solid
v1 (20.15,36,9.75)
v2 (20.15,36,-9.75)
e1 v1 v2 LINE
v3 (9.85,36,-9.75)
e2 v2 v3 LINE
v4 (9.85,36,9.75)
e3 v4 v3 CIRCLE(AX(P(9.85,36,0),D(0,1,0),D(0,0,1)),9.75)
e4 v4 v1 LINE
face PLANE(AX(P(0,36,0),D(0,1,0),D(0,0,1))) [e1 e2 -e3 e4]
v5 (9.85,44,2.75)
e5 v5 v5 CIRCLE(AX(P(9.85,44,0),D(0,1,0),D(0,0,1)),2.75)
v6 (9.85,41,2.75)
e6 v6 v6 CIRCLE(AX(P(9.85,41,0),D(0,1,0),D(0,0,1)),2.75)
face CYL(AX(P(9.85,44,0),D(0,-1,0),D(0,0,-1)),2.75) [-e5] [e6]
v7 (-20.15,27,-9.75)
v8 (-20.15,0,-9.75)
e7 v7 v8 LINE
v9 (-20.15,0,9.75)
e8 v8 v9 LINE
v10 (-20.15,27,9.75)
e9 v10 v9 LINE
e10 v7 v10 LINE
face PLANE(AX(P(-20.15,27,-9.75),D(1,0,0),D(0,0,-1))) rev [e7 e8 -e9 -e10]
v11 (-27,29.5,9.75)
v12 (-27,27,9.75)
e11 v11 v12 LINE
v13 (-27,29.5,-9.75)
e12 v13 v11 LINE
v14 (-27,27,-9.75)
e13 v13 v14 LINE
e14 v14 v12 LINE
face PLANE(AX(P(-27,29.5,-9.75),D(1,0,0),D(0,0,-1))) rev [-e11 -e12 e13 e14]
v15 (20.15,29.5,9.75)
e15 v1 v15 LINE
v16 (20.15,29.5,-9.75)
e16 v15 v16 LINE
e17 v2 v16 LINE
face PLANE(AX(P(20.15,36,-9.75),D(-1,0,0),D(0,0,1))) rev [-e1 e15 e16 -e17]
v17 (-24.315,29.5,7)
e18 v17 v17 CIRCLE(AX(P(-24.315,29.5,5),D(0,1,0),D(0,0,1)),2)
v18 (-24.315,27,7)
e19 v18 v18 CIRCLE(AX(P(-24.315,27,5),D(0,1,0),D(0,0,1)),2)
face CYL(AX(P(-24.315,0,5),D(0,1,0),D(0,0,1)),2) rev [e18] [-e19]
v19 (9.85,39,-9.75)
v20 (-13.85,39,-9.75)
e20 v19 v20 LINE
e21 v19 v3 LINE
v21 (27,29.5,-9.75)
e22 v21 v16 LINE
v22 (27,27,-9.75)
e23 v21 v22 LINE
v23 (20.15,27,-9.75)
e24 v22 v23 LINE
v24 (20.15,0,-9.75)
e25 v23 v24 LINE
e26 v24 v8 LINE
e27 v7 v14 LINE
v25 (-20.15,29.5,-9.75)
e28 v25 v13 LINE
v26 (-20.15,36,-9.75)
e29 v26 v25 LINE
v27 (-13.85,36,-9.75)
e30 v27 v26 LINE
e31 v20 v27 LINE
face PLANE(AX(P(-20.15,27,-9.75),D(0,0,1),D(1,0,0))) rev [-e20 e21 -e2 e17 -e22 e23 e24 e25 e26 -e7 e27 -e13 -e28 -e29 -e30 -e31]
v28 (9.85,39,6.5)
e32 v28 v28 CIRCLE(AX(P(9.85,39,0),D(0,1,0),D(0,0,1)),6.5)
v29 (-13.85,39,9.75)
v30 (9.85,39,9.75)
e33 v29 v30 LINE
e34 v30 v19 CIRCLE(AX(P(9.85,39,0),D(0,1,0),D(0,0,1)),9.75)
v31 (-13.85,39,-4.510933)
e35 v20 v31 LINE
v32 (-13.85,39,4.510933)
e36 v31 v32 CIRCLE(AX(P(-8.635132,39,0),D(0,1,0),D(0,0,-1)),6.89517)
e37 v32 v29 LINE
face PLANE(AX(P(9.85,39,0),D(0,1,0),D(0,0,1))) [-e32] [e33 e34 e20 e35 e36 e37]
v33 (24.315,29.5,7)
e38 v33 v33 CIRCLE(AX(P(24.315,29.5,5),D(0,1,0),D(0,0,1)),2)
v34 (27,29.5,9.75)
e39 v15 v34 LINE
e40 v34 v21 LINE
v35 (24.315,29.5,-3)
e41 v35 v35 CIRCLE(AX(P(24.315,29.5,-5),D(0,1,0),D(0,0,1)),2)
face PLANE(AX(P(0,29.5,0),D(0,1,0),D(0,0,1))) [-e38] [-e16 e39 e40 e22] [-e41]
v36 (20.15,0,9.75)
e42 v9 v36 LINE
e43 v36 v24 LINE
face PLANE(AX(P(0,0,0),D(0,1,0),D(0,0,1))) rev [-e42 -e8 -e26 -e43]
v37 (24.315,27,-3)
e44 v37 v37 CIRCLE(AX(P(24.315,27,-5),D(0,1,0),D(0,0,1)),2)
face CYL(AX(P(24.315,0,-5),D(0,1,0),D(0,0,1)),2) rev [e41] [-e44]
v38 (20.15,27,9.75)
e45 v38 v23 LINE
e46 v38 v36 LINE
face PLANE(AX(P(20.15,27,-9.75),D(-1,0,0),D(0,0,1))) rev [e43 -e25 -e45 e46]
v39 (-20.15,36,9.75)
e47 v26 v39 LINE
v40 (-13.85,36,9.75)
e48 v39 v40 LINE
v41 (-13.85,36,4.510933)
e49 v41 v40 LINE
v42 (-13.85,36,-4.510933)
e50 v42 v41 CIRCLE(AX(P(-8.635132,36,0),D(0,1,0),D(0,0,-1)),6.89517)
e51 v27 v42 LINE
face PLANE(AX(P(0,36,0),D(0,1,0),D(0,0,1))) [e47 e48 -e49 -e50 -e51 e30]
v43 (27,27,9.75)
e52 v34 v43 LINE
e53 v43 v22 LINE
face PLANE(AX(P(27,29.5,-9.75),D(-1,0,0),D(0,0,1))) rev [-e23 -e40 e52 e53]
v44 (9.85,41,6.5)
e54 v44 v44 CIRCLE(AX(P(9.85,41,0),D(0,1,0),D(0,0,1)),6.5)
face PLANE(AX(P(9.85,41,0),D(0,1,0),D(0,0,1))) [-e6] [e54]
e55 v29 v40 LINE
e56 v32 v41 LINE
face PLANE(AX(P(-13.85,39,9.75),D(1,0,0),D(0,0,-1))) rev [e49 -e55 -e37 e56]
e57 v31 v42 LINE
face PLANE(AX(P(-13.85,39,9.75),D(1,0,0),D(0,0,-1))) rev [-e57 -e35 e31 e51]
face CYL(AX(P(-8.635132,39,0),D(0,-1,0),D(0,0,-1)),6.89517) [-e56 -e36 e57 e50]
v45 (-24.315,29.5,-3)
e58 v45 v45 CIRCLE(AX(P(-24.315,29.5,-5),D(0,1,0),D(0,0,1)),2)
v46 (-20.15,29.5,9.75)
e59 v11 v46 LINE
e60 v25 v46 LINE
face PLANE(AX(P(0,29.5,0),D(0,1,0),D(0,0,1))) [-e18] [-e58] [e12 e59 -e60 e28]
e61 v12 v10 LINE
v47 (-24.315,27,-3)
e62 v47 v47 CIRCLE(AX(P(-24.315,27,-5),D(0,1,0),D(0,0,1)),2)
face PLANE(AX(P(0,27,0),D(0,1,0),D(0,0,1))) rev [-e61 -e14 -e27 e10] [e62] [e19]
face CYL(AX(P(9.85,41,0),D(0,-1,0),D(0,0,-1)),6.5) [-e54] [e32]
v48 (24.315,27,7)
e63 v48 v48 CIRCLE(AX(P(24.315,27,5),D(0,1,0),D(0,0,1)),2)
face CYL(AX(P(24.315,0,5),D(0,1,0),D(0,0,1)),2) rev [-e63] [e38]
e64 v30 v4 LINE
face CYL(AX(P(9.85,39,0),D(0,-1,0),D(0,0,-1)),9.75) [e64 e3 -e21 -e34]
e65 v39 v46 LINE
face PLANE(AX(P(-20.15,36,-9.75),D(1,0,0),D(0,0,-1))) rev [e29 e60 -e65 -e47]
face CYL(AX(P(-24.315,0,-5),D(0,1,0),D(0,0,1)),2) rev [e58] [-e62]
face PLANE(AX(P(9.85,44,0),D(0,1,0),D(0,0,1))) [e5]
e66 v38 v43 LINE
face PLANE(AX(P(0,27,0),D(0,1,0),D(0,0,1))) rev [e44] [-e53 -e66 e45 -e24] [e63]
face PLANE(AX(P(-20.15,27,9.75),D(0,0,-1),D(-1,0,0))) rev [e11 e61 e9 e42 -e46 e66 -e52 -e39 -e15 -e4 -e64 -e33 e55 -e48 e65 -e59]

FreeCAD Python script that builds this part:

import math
import FreeCAD as App
import Part
import Sketcher
from FreeCAD import Vector

doc = App.newDocument("Part")
body = doc.addObject("PartDesign::Body", "Body")

sketch1 = body.newObject("Sketcher::SketchObject", "Sketch")
sketch1.AttachmentSupport = (doc.getObject("XZ_Plane"), [""])
sketch1.MapMode = "FlatFace"
sketch1.addGeometry([
    Part.LineSegment(Vector(-20.15, -9.75, 0), Vector(-20.15, 9.75, 0)),
    Part.LineSegment(Vector(-20.15, 9.75, 0), Vector(20.15, 9.75, 0)),
    Part.LineSegment(Vector(20.15, 9.75, 0), Vector(20.15, -9.75, 0)),
    Part.LineSegment(Vector(20.15, -9.75, 0), Vector(-20.15, -9.75, 0)),
], False)
sketch1.addConstraint([
    Sketcher.Constraint("Coincident", 0, 2, 1, 1),
    Sketcher.Constraint("Coincident", 1, 2, 2, 1),
    Sketcher.Constraint("Coincident", 2, 2, 3, 1),
    Sketcher.Constraint("Coincident", 3, 2, 0, 1),
    Sketcher.Constraint("Vertical", 0),
    Sketcher.Constraint("Horizontal", 1),
    Sketcher.Constraint("Vertical", 2),
    Sketcher.Constraint("Horizontal", 3),
    Sketcher.Constraint("Symmetric", 0, 2, 2, 2, -1, 1),
    Sketcher.Constraint("DistanceX", 1, 1, 1, 2, 40.3),
    Sketcher.Constraint("DistanceY", 0, 1, 0, 2, 19.5),
])
pad1 = body.newObject("PartDesign::Pad", "Pad")
pad1.Profile = sketch1
pad1.Length = 27
pad1.Reversed = True

sketch2 = body.newObject("Sketcher::SketchObject", "Sketch001")
sketch2.AttachmentSupport = (doc.getObject("XZ_Plane"), [""])
sketch2.MapMode = "FlatFace"
sketch2.AttachmentOffset = App.Placement(Vector(0, 0, -27), App.Rotation())
sketch2.addGeometry([
    Part.LineSegment(Vector(-27, -9.75, 0), Vector(-27, 9.75, 0)),
    Part.LineSegment(Vector(-27, 9.75, 0), Vector(27, 9.75, 0)),
    Part.LineSegment(Vector(27, 9.75, 0), Vector(27, -9.75, 0)),
    Part.LineSegment(Vector(27, -9.75, 0), Vector(-27, -9.75, 0)),
], False)
sketch2.addConstraint([
    Sketcher.Constraint("Coincident", 0, 2, 1, 1),
    Sketcher.Constraint("Coincident", 1, 2, 2, 1),
    Sketcher.Constraint("Coincident", 2, 2, 3, 1),
    Sketcher.Constraint("Coincident", 3, 2, 0, 1),
    Sketcher.Constraint("Vertical", 0),
    Sketcher.Constraint("Horizontal", 1),
    Sketcher.Constraint("Vertical", 2),
    Sketcher.Constraint("Horizontal", 3),
    Sketcher.Constraint("Symmetric", 0, 2, 2, 2, -1, 1),
    Sketcher.Constraint("DistanceX", 1, 1, 1, 2, 54.0),
    Sketcher.Constraint("DistanceY", 0, 1, 0, 2, 19.5),
])
pad2 = body.newObject("PartDesign::Pad", "Pad001")
pad2.Profile = sketch2
pad2.Length = 2.5
pad2.Reversed = True

sketch3 = body.newObject("Sketcher::SketchObject", "Sketch002")
sketch3.AttachmentSupport = (doc.getObject("XZ_Plane"), [""])
sketch3.MapMode = "FlatFace"
sketch3.AttachmentOffset = App.Placement(Vector(0, 0, -29.5), App.Rotation())
sketch3.addGeometry([
    Part.LineSegment(Vector(-20.15, -9.75, 0), Vector(-20.15, 9.75, 0)),
    Part.LineSegment(Vector(-20.15, 9.75, 0), Vector(20.15, 9.75, 0)),
    Part.LineSegment(Vector(20.15, 9.75, 0), Vector(20.15, -9.75, 0)),
    Part.LineSegment(Vector(20.15, -9.75, 0), Vector(-20.15, -9.75, 0)),
], False)
sketch3.addConstraint([
    Sketcher.Constraint("Coincident", 0, 2, 1, 1),
    Sketcher.Constraint("Coincident", 1, 2, 2, 1),
    Sketcher.Constraint("Coincident", 2, 2, 3, 1),
    Sketcher.Constraint("Coincident", 3, 2, 0, 1),
    Sketcher.Constraint("Vertical", 0),
    Sketcher.Constraint("Horizontal", 1),
    Sketcher.Constraint("Vertical", 2),
    Sketcher.Constraint("Horizontal", 3),
    Sketcher.Constraint("Symmetric", 0, 2, 2, 2, -1, 1),
    Sketcher.Constraint("DistanceX", 1, 1, 1, 2, 40.3),
    Sketcher.Constraint("DistanceY", 0, 1, 0, 2, 19.5),
])
pad3 = body.newObject("PartDesign::Pad", "Pad002")
pad3.Profile = sketch3
pad3.Length = 6.5
pad3.Reversed = True

sketch4 = body.newObject("Sketcher::SketchObject", "Sketch003")
sketch4.AttachmentSupport = (doc.getObject("XZ_Plane"), [""])
sketch4.MapMode = "FlatFace"
sketch4.AttachmentOffset = App.Placement(Vector(0, 0, -36), App.Rotation())
sketch4.addGeometry(Part.Circle(Vector(9.85, 0, 0), Vector(0, 0, 1), 2.75), False)
sketch4.addConstraint([
    Sketcher.Constraint("PointOnObject", 0, 3, -1),
    Sketcher.Constraint("Diameter", 0, 5.5),
    Sketcher.Constraint("DistanceX", -1, 1, 0, 3, 9.85),
])
pad4 = body.newObject("PartDesign::Pad", "Pad003")
pad4.Profile = sketch4
pad4.Length = 8
pad4.Reversed = True

sketch5 = body.newObject("Sketcher::SketchObject", "Sketch004")
sketch5.AttachmentSupport = (doc.getObject("XZ_Plane"), [""])
sketch5.MapMode = "FlatFace"
sketch5.AttachmentOffset = App.Placement(Vector(0, 0, -29.5), App.Rotation())
sketch5.addGeometry([
    Part.Circle(Vector(-24.315, -5, 0), Vector(0, 0, 1), 2),
    Part.Circle(Vector(-24.315, 5, 0), Vector(0, 0, 1), 2),
    Part.Circle(Vector(24.315, 5, 0), Vector(0, 0, 1), 2),
    Part.Circle(Vector(24.315, -5, 0), Vector(0, 0, 1), 2),
], False)
sketch5.addConstraint([
    Sketcher.Constraint("Equal", 0, 1),
    Sketcher.Constraint("Equal", 1, 2),
    Sketcher.Constraint("Equal", 2, 3),
    Sketcher.Constraint("Symmetric", 0, 3, 2, 3, -1, 1),
    Sketcher.Constraint("Symmetric", 1, 3, 3, 3, -1, 1),
    Sketcher.Constraint("Symmetric", 1, 3, 2, 3, -2),
    Sketcher.Constraint("Diameter", 0, 4.0),
    Sketcher.Constraint("DistanceY", 0, 3, -1, 1, 5.0),
    Sketcher.Constraint("DistanceX", 1, 3, 2, 3, 48.63),
])
pocket1 = body.newObject("PartDesign::Pocket", "Pocket")
pocket1.Profile = sketch5
pocket1.Type = "ThroughAll"
pocket1.Midplane = True

sketch6 = body.newObject("Sketcher::SketchObject", "Sketch005")
sketch6.AttachmentSupport = (doc.getObject("XZ_Plane"), [""])
sketch6.MapMode = "FlatFace"
sketch6.AttachmentOffset = App.Placement(Vector(0, 0, -36), App.Rotation())
sketch6.addGeometry([
    Part.LineSegment(Vector(-13.85, 9.75, 0), Vector(9.85, 9.75, 0)),
    Part.ArcOfCircle(Part.Circle(Vector(9.85, 0, 0), Vector(0, 0, 1), 9.75), math.radians(-90), math.radians(90)),
    Part.LineSegment(Vector(9.85, -9.75, 0), Vector(-13.85, -9.75, 0)),
    Part.LineSegment(Vector(-13.85, -9.75, 0), Vector(-13.85, 9.75, 0)),
], False)
sketch6.addConstraint([
    Sketcher.Constraint("Tangent", 0, 2, 1, 2),
    Sketcher.Constraint("Tangent", 1, 1, 2, 1),
    Sketcher.Constraint("Coincident", 2, 2, 3, 1),
    Sketcher.Constraint("Coincident", 3, 2, 0, 1),
    Sketcher.Constraint("Horizontal", 0),
    Sketcher.Constraint("Horizontal", 2),
    Sketcher.Constraint("Vertical", 3),
    Sketcher.Constraint("PointOnObject", 1, 3, -1),
    Sketcher.Constraint("Radius", 1, 9.75),
    Sketcher.Constraint("DistanceX", 0, 1, 0, 2, 23.7),
    Sketcher.Constraint("DistanceX", -1, 1, 1, 3, 9.85),
])
pad5 = body.newObject("PartDesign::Pad", "Pad004")
pad5.Profile = sketch6
pad5.Length = 3
pad5.Reversed = True

sketch7 = body.newObject("Sketcher::SketchObject", "Sketch006")
sketch7.AttachmentSupport = (doc.getObject("XZ_Plane"), [""])
sketch7.MapMode = "FlatFace"
sketch7.AttachmentOffset = App.Placement(Vector(0, 0, -39), App.Rotation())
sketch7.addGeometry(Part.Circle(Vector(9.85, 0, 0), Vector(0, 0, 1), 6.5), False)
sketch7.addConstraint([
    Sketcher.Constraint("PointOnObject", 0, 3, -1),
    Sketcher.Constraint("Diameter", 0, 13.0),
    Sketcher.Constraint("DistanceX", -1, 1, 0, 3, 9.85),
])
pad6 = body.newObject("PartDesign::Pad", "Pad005")
pad6.Profile = sketch7
pad6.Length = 2
pad6.Reversed = True

sketch8 = body.newObject("Sketcher::SketchObject", "Sketch007")
sketch8.AttachmentSupport = (doc.getObject("XZ_Plane"), [""])
sketch8.MapMode = "FlatFace"
sketch8.AttachmentOffset = App.Placement(Vector(0, 0, -36), App.Rotation())
sketch8.addGeometry([
    Part.LineSegment(Vector(-13.85, 4.510933, 0), Vector(-13.85, -4.510933, 0)),
    Part.ArcOfCircle(Part.Circle(Vector(-8.635132, 0, 0), Vector(0, 0, 1), 6.89517), math.radians(139.139737), math.radians(220.860263)),
], False)
sketch8.addConstraint([
    Sketcher.Constraint("Coincident", 0, 1, 1, 1),
    Sketcher.Constraint("Coincident", 1, 2, 0, 2),
    Sketcher.Constraint("Vertical", 0),
    Sketcher.Constraint("PointOnObject", 1, 3, -1),
    Sketcher.Constraint("DistanceX", 0, 1, -1, 1, 13.85),
    Sketcher.Constraint("Radius", 1, 6.89517),
    Sketcher.Constraint("DistanceY", 0, 2, 0, 1, 9.021867),
])
pad7 = body.newObject("PartDesign::Pad", "Pad006")
pad7.Profile = sketch8
pad7.Length = 3
pad7.Reversed = True

doc.recompute()
